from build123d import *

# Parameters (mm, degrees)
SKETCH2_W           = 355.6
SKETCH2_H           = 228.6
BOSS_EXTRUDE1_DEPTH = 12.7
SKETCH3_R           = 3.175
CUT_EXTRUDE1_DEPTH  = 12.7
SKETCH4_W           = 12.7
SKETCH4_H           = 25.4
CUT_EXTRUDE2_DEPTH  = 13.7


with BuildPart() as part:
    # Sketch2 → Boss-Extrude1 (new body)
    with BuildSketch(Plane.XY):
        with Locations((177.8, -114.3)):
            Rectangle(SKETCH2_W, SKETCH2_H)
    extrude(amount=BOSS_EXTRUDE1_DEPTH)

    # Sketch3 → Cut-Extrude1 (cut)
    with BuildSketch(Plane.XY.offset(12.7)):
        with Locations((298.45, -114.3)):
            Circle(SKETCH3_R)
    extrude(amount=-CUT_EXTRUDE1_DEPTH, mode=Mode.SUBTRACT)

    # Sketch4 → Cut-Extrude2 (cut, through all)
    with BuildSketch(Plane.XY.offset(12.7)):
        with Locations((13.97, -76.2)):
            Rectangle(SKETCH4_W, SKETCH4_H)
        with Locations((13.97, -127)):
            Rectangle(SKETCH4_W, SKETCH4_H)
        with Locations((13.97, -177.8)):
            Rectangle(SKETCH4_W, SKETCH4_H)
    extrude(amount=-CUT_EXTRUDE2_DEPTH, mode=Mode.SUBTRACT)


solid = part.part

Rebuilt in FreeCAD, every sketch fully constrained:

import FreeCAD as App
import Part
import Sketcher
Q = App.Units.Quantity


def add_polygon(sketch, points):
    """Adds a closed chain of lines whose ends are joined by coincident constraints."""
    first, n = sketch.GeometryCount, len(points)
    for a, b in zip(points, points[1:] + points[:1]):
        sketch.addGeometry(Part.LineSegment(App.Vector(*a, 0), App.Vector(*b, 0)), False)
    for i in range(n):
        sketch.addConstraint(Sketcher.Constraint("Coincident", first + i, 2, first + (i + 1) % n, 1))

doc = App.newDocument("Part")
body = doc.addObject("PartDesign::Body", "Body")

# Sketch on XY plane
sketch1 = body.newObject("Sketcher::SketchObject", "Sketch")
sketch1.AttachmentSupport = (doc.getObject("XY_Plane"), [""])
sketch1.MapMode = "FlatFace"
add_polygon(sketch1, [(0, 0), (0, -229), (356, -229), (356, 0)])  # lines 0-3
sketch1.addConstraint([
    Sketcher.Constraint("Vertical", 0),
    Sketcher.Constraint("Horizontal", 1),
    Sketcher.Constraint("Vertical", 2),
    Sketcher.Constraint("Horizontal", 3),
    Sketcher.Constraint("Coincident", 3, 2, -1, 1),
    Sketcher.Constraint("DistanceX", 1, 1, 1, 2, Q("14 in")),
    Sketcher.Constraint("DistanceY", 0, 2, 0, 1, Q("9 in")),
])
pad1 = body.newObject("PartDesign::Pad", "Pad")
pad1.Profile = sketch1
pad1.Length = Q("0.5 in")

# Sketch on XY plane
sketch2 = body.newObject("Sketcher::SketchObject", "Sketch001")
sketch2.AttachmentSupport = (doc.getObject("XY_Plane"), [""])
sketch2.MapMode = "FlatFace"
sketch2.AttachmentOffset = App.Placement(App.Vector(0, 0, 0.5 * 25.4), App.Rotation())
sketch2.addGeometry(Part.Circle(App.Vector(298.4, -114.3, 0), App.Vector(0, 0, 1), 3.2), False)
sketch2.addConstraint([
    Sketcher.Constraint("Diameter", 0, Q("0.25 in")),
    Sketcher.Constraint("DistanceY", 0, 3, -1, 1, Q("4.5 in")),
    Sketcher.Constraint("DistanceX", -1, 1, 0, 3, Q("11.75 in")),
])
pocket1 = body.newObject("PartDesign::Pocket", "Pocket")
pocket1.Profile = sketch2
pocket1.Length = Q("0.5 in")

# Sketch on XY plane
sketch3 = body.newObject("Sketcher::SketchObject", "Sketch002")
sketch3.AttachmentSupport = (doc.getObject("XY_Plane"), [""])
sketch3.MapMode = "FlatFace"
sketch3.AttachmentOffset = App.Placement(App.Vector(0, 0, 0.5 * 25.4), App.Rotation())
add_polygon(sketch3, [(8, -64), (8, -89), (20, -89), (20, -64)])  # lines 0-3
add_polygon(sketch3, [(8, -114), (8, -140), (20, -140), (20, -114)])  # lines 4-7
add_polygon(sketch3, [(8, -165), (8, -190), (20, -190), (20, -165)])  # lines 8-11
sketch3.addConstraint([
    Sketcher.Constraint("Vertical", 0),
    Sketcher.Constraint("Horizontal", 1),
    Sketcher.Constraint("Vertical", 2),
    Sketcher.Constraint("Horizontal", 3),
    Sketcher.Constraint("Vertical", 4),
    Sketcher.Constraint("Horizontal", 5),
    Sketcher.Constraint("Vertical", 6),
    Sketcher.Constraint("Horizontal", 7),
    Sketcher.Constraint("Vertical", 8),
    Sketcher.Constraint("Horizontal", 9),
    Sketcher.Constraint("Vertical", 10),
    Sketcher.Constraint("Horizontal", 11),
    Sketcher.Constraint("Vertical", 3, 2, 4, 2),
    Sketcher.Constraint("Vertical", 2, 2, 5, 2),
    Sketcher.Constraint("Vertical", 7, 2, 8, 2),
    Sketcher.Constraint("Vertical", 6, 2, 9, 2),
    Sketcher.Constraint("Equal", 2, 4),
    Sketcher.Constraint("Equal", 6, 8),
    Sketcher.Constraint("DistanceY", 0, 2, 0, 1, Q("1 in")),
    Sketcher.Constraint("DistanceX", 1, 1, 1, 2, Q("0.5 in")),
    Sketcher.Constraint("DistanceY", 4, 2, 0, 2, Q("2 in")),
    Sketcher.Constraint("DistanceY", 8, 2, 4, 2, Q("2 in")),
    Sketcher.Constraint("DistanceX", -1, 1, 0, 2, Q("0.3 in")),
    Sketcher.Constraint("DistanceY", 0, 2, -1, 1, Q("3.5 in")),
])
pocket2 = body.newObject("PartDesign::Pocket", "Pocket001")
pocket2.Profile = sketch3
pocket2.Type = "ThroughAll"

doc.recompute()
